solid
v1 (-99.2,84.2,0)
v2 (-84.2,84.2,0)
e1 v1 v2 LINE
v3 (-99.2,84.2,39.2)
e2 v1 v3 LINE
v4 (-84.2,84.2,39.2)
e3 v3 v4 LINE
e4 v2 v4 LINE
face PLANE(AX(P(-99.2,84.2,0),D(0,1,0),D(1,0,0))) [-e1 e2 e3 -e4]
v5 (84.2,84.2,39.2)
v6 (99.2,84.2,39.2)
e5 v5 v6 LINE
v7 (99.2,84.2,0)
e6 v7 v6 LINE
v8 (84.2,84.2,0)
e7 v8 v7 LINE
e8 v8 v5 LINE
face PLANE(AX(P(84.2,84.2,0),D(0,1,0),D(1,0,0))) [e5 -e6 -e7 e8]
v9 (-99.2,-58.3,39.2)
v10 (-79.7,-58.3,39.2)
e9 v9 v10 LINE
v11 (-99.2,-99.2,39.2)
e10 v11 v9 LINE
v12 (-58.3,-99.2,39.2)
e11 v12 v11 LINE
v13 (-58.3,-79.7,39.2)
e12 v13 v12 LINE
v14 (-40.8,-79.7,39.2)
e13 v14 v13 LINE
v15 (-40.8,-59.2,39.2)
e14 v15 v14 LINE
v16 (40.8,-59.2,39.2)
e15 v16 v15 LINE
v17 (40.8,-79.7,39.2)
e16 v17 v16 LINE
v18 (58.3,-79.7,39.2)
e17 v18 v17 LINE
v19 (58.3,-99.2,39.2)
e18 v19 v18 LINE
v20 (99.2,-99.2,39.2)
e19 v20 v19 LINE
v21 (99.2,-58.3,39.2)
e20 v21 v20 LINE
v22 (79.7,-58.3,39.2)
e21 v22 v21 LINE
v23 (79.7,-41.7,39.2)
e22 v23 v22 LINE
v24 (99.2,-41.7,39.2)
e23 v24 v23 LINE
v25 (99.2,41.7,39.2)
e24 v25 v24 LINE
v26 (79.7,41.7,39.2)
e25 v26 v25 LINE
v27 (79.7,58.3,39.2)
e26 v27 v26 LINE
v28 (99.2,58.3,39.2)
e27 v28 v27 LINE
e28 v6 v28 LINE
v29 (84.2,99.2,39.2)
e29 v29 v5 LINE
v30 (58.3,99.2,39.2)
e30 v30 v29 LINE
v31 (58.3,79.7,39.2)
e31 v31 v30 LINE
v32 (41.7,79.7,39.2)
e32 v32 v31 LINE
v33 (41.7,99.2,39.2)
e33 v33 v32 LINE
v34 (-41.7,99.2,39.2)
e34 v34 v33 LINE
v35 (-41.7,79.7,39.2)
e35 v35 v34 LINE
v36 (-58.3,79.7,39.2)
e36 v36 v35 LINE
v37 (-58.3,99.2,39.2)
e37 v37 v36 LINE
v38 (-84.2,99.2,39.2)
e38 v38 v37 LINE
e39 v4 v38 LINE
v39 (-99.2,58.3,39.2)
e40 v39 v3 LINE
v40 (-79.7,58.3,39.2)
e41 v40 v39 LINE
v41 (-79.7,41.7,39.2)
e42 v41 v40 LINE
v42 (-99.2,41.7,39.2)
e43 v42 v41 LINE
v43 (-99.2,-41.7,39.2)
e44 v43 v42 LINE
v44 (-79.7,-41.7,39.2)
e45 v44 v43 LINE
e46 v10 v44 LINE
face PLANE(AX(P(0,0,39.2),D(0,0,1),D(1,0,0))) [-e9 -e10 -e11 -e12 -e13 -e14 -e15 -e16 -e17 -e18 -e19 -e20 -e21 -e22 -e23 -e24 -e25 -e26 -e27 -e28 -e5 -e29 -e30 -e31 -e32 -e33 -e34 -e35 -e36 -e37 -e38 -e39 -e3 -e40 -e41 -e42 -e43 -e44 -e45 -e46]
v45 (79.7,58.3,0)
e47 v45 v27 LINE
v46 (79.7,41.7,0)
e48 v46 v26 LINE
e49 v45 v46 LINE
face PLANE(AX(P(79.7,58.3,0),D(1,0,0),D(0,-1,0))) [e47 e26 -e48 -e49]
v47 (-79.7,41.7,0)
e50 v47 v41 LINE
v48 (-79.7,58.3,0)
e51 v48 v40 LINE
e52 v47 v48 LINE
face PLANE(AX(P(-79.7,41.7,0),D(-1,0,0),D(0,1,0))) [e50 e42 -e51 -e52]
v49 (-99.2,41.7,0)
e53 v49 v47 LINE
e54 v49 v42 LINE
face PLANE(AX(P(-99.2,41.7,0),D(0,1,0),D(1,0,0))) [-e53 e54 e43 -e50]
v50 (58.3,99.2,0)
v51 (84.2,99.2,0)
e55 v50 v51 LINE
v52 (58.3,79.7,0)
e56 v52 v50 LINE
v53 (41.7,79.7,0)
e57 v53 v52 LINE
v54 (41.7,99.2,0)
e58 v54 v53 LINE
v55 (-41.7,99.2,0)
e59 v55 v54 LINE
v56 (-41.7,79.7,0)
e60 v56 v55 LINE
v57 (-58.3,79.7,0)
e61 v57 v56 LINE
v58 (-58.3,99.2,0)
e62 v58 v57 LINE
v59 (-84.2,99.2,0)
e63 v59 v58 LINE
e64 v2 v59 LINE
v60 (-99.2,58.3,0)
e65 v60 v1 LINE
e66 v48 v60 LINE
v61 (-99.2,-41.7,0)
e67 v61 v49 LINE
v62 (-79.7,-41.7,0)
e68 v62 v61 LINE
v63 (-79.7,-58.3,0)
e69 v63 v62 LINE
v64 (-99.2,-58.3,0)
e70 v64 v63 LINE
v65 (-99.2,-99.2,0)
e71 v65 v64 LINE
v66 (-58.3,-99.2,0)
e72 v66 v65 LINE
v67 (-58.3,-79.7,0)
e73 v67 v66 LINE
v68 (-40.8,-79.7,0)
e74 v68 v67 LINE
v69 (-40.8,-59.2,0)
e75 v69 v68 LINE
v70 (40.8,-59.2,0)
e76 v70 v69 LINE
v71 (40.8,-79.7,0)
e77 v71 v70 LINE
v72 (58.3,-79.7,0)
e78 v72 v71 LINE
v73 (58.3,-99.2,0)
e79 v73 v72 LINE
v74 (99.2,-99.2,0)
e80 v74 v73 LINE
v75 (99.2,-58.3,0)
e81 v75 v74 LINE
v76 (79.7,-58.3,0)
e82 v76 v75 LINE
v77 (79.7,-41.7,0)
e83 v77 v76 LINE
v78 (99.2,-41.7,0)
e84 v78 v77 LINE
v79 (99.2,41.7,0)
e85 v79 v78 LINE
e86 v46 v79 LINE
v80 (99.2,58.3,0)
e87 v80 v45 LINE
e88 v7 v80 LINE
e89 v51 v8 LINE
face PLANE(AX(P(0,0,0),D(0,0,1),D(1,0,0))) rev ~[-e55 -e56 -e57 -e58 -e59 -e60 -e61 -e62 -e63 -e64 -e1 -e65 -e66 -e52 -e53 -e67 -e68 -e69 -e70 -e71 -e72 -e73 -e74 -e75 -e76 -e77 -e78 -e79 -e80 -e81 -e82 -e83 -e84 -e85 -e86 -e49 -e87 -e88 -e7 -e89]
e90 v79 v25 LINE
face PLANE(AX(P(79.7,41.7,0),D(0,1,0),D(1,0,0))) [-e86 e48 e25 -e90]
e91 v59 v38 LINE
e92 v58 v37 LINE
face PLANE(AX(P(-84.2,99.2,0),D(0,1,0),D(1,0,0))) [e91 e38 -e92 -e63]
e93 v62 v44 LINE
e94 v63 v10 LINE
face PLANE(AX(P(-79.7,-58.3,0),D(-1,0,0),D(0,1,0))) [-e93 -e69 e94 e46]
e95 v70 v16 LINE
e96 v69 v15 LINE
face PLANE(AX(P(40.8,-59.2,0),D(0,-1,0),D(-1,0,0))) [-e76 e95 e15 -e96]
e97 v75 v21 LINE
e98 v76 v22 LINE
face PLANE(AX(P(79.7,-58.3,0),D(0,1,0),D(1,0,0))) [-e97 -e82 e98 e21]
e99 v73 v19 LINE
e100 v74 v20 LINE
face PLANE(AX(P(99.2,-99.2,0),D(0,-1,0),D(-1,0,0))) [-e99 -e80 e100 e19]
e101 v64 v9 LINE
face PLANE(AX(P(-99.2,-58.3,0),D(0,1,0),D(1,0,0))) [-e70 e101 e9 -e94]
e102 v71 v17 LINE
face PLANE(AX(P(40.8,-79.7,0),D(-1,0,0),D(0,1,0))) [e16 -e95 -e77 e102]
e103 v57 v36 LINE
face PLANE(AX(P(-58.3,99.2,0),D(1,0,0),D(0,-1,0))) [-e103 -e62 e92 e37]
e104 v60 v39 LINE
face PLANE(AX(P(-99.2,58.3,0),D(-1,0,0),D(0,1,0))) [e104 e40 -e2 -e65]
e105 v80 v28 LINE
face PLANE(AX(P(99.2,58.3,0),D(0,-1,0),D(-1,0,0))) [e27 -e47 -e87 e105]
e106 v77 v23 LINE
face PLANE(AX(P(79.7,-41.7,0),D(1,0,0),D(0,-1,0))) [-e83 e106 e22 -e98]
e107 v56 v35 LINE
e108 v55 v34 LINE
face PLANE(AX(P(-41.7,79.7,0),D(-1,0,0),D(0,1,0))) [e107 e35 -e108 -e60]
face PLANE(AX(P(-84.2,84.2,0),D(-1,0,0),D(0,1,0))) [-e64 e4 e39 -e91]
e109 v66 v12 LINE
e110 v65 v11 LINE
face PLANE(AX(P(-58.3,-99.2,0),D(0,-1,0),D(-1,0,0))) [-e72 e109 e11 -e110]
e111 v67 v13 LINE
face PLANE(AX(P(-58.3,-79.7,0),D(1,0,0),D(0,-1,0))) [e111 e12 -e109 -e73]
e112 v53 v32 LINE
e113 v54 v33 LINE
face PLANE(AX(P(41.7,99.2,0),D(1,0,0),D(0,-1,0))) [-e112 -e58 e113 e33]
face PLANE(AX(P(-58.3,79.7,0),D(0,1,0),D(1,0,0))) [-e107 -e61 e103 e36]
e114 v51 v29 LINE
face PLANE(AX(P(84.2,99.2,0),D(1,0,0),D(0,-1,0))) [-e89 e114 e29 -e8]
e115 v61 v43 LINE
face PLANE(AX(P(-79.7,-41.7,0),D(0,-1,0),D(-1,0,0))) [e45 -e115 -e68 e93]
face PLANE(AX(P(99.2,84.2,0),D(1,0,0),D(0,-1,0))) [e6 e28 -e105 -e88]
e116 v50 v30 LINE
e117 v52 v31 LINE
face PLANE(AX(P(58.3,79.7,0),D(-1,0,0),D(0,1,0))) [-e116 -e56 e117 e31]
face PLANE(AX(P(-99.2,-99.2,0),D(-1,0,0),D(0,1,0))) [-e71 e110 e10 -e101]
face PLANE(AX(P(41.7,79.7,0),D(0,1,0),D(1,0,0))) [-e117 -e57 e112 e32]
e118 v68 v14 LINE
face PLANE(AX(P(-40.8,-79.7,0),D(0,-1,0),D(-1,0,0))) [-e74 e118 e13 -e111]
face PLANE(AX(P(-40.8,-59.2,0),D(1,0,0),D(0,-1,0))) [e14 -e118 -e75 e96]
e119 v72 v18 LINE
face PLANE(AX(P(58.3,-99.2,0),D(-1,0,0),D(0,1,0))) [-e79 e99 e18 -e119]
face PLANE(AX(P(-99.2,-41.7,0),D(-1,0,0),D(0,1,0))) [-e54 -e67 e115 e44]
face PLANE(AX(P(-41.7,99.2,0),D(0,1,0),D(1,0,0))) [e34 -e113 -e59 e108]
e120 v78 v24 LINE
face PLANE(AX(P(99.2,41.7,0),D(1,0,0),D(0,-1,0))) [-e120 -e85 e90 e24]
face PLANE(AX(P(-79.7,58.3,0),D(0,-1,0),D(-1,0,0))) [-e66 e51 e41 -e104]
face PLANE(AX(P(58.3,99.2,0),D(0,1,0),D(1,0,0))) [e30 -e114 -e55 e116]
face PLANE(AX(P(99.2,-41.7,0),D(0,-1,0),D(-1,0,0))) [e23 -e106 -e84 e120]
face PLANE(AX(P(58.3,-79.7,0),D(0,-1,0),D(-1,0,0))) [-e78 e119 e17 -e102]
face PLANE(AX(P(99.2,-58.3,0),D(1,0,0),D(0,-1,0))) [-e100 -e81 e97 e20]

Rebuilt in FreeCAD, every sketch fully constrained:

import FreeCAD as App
import Part
import Sketcher
Q = App.Units.Quantity

doc = App.newDocument("Part")
body = doc.addObject("PartDesign::Body", "Body")

sketch1 = body.newObject("Sketcher::SketchObject", "Sketch")
sketch1.AttachmentSupport = (doc.getObject("XY_Plane"), [""])
sketch1.MapMode = "FlatFace"
sketch1.addGeometry(Part.LineSegment(App.Vector(-41, -59, 0), App.Vector(41, -59, 0)), False)
sketch1.addGeometry(Part.LineSegment(App.Vector(41, -59, 0), App.Vector(41, -80, 0)), False)
sketch1.addGeometry(Part.LineSegment(App.Vector(41, -80, 0), App.Vector(58, -80, 0)), False)
sketch1.addGeometry(Part.LineSegment(App.Vector(58, -80, 0), App.Vector(58, -99, 0)), False)
sketch1.addGeometry(Part.LineSegment(App.Vector(58, -99, 0), App.Vector(99, -99, 0)), False)
sketch1.addGeometry(Part.LineSegment(App.Vector(99, -99, 0), App.Vector(99, -58, 0)), False)
sketch1.addGeometry(Part.LineSegment(App.Vector(99, -58, 0), App.Vector(80, -58, 0)), False)
sketch1.addGeometry(Part.LineSegment(App.Vector(80, -58, 0), App.Vector(80, -42, 0)), False)
sketch1.addGeometry(Part.LineSegment(App.Vector(80, -42, 0), App.Vector(99, -42, 0)), False)
sketch1.addGeometry(Part.LineSegment(App.Vector(99, -42, 0), App.Vector(99, 42, 0)), False)
sketch1.addGeometry(Part.LineSegment(App.Vector(99, 42, 0), App.Vector(80, 42, 0)), False)
sketch1.addGeometry(Part.LineSegment(App.Vector(80, 42, 0), App.Vector(80, 58, 0)), False)
sketch1.addGeometry(Part.LineSegment(App.Vector(80, 58, 0), App.Vector(99, 58, 0)), False)
sketch1.addGeometry(Part.LineSegment(App.Vector(99, 58, 0), App.Vector(99, 84, 0)), False)
sketch1.addGeometry(Part.LineSegment(App.Vector(99, 84, 0), App.Vector(84, 84, 0)), False)
sketch1.addGeometry(Part.LineSegment(App.Vector(84, 84, 0), App.Vector(84, 99, 0)), False)
sketch1.addGeometry(Part.LineSegment(App.Vector(84, 99, 0), App.Vector(58, 99, 0)), False)
sketch1.addGeometry(Part.LineSegment(App.Vector(58, 99, 0), App.Vector(58, 80, 0)), False)
sketch1.addGeometry(Part.LineSegment(App.Vector(58, 80, 0), App.Vector(42, 80, 0)), False)
sketch1.addGeometry(Part.LineSegment(App.Vector(42, 80, 0), App.Vector(42, 99, 0)), False)
sketch1.addGeometry(Part.LineSegment(App.Vector(42, 99, 0), App.Vector(-42, 99, 0)), False)
sketch1.addGeometry(Part.LineSegment(App.Vector(-42, 99, 0), App.Vector(-42, 80, 0)), False)
sketch1.addGeometry(Part.LineSegment(App.Vector(-42, 80, 0), App.Vector(-58, 80, 0)), False)
sketch1.addGeometry(Part.LineSegment(App.Vector(-58, 80, 0), App.Vector(-58, 99, 0)), False)
sketch1.addGeometry(Part.LineSegment(App.Vector(-58, 99, 0), App.Vector(-84, 99, 0)), False)
sketch1.addGeometry(Part.LineSegment(App.Vector(-84, 99, 0), App.Vector(-84, 84, 0)), False)
sketch1.addGeometry(Part.LineSegment(App.Vector(-84, 84, 0), App.Vector(-99, 84, 0)), False)
sketch1.addGeometry(Part.LineSegment(App.Vector(-99, 84, 0), App.Vector(-99, 58, 0)), False)
sketch1.addGeometry(Part.LineSegment(App.Vector(-99, 58, 0), App.Vector(-80, 58, 0)), False)
sketch1.addGeometry(Part.LineSegment(App.Vector(-80, 58, 0), App.Vector(-80, 42, 0)), False)
sketch1.addGeometry(Part.LineSegment(App.Vector(-80, 42, 0), App.Vector(-99, 42, 0)), False)
sketch1.addGeometry(Part.LineSegment(App.Vector(-99, 42, 0), App.Vector(-99, -42, 0)), False)
sketch1.addGeometry(Part.LineSegment(App.Vector(-99, -42, 0), App.Vector(-80, -42, 0)), False)
sketch1.addGeometry(Part.LineSegment(App.Vector(-80, -42, 0), App.Vector(-80, -58, 0)), False)
sketch1.addGeometry(Part.LineSegment(App.Vector(-80, -58, 0), App.Vector(-99, -58, 0)), False)
sketch1.addGeometry(Part.LineSegment(App.Vector(-99, -58, 0), App.Vector(-99, -99, 0)), False)
sketch1.addGeometry(Part.LineSegment(App.Vector(-99, -99, 0), App.Vector(-58, -99, 0)), False)
sketch1.addGeometry(Part.LineSegment(App.Vector(-58, -99, 0), App.Vector(-58, -80, 0)), False)
sketch1.addGeometry(Part.LineSegment(App.Vector(-58, -80, 0), App.Vector(-41, -80, 0)), False)
sketch1.addGeometry(Part.LineSegment(App.Vector(-41, -80, 0), App.Vector(-41, -59, 0)), False)
sketch1.addConstraint(Sketcher.Constraint("Coincident", 0, 2, 1, 1))
sketch1.addConstraint(Sketcher.Constraint("Coincident", 1, 2, 2, 1))
sketch1.addConstraint(Sketcher.Constraint("Coincident", 2, 2, 3, 1))
sketch1.addConstraint(Sketcher.Constraint("Coincident", 3, 2, 4, 1))
sketch1.addConstraint(Sketcher.Constraint("Coincident", 4, 2, 5, 1))
sketch1.addConstraint(Sketcher.Constraint("Coincident", 5, 2, 6, 1))
sketch1.addConstraint(Sketcher.Constraint("Coincident", 6, 2, 7, 1))
sketch1.addConstraint(Sketcher.Constraint("Coincident", 7, 2, 8, 1))
sketch1.addConstraint(Sketcher.Constraint("Coincident", 8, 2, 9, 1))
sketch1.addConstraint(Sketcher.Constraint("Coincident", 9, 2, 10, 1))
sketch1.addConstraint(Sketcher.Constraint("Coincident", 10, 2, 11, 1))
sketch1.addConstraint(Sketcher.Constraint("Coincident", 11, 2, 12, 1))
sketch1.addConstraint(Sketcher.Constraint("Coincident", 12, 2, 13, 1))
sketch1.addConstraint(Sketcher.Constraint("Coincident", 13, 2, 14, 1))
sketch1.addConstraint(Sketcher.Constraint("Coincident", 14, 2, 15, 1))
sketch1.addConstraint(Sketcher.Constraint("Coincident", 15, 2, 16, 1))
sketch1.addConstraint(Sketcher.Constraint("Coincident", 16, 2, 17, 1))
sketch1.addConstraint(Sketcher.Constraint("Coincident", 17, 2, 18, 1))
sketch1.addConstraint(Sketcher.Constraint("Coincident", 18, 2, 19, 1))
sketch1.addConstraint(Sketcher.Constraint("Coincident", 19, 2, 20, 1))
sketch1.addConstraint(Sketcher.Constraint("Coincident", 20, 2, 21, 1))
sketch1.addConstraint(Sketcher.Constraint("Coincident", 21, 2, 22, 1))
sketch1.addConstraint(Sketcher.Constraint("Coincident", 22, 2, 23, 1))
sketch1.addConstraint(Sketcher.Constraint("Coincident", 23, 2, 24, 1))
sketch1.addConstraint(Sketcher.Constraint("Coincident", 24, 2, 25, 1))
sketch1.addConstraint(Sketcher.Constraint("Coincident", 25, 2, 26, 1))
sketch1.addConstraint(Sketcher.Constraint("Coincident", 26, 2, 27, 1))
sketch1.addConstraint(Sketcher.Constraint("Coincident", 27, 2, 28, 1))
sketch1.addConstraint(Sketcher.Constraint("Coincident", 28, 2, 29, 1))
sketch1.addConstraint(Sketcher.Constraint("Coincident", 29, 2, 30, 1))
sketch1.addConstraint(Sketcher.Constraint("Coincident", 30, 2, 31, 1))
sketch1.addConstraint(Sketcher.Constraint("Coincident", 31, 2, 32, 1))
sketch1.addConstraint(Sketcher.Constraint("Coincident", 32, 2, 33, 1))
sketch1.addConstraint(Sketcher.Constraint("Coincident", 33, 2, 34, 1))
sketch1.addConstraint(Sketcher.Constraint("Coincident", 34, 2, 35, 1))
sketch1.addConstraint(Sketcher.Constraint("Coincident", 35, 2, 36, 1))
sketch1.addConstraint(Sketcher.Constraint("Coincident", 36, 2, 37, 1))
sketch1.addConstraint(Sketcher.Constraint("Coincident", 37, 2, 38, 1))
sketch1.addConstraint(Sketcher.Constraint("Coincident", 38, 2, 39, 1))
sketch1.addConstraint(Sketcher.Constraint("Coincident", 39, 2, 0, 1))
sketch1.addConstraint(Sketcher.Constraint("Horizontal", 0))
sketch1.addConstraint(Sketcher.Constraint("Vertical", 1))
sketch1.addConstraint(Sketcher.Constraint("Horizontal", 2))
sketch1.addConstraint(Sketcher.Constraint("Vertical", 3))
sketch1.addConstraint(Sketcher.Constraint("Horizontal", 4))
sketch1.addConstraint(Sketcher.Constraint("Vertical", 5))
sketch1.addConstraint(Sketcher.Constraint("Horizontal", 6))
sketch1.addConstraint(Sketcher.Constraint("Vertical", 7))
sketch1.addConstraint(Sketcher.Constraint("Horizontal", 8))
sketch1.addConstraint(Sketcher.Constraint("Vertical", 9))
sketch1.addConstraint(Sketcher.Constraint("Horizontal", 10))
sketch1.addConstraint(Sketcher.Constraint("Vertical", 11))
sketch1.addConstraint(Sketcher.Constraint("Horizontal", 12))
sketch1.addConstraint(Sketcher.Constraint("Vertical", 13))
sketch1.addConstraint(Sketcher.Constraint("Horizontal", 14))
sketch1.addConstraint(Sketcher.Constraint("Vertical", 15))
sketch1.addConstraint(Sketcher.Constraint("Horizontal", 16))
sketch1.addConstraint(Sketcher.Constraint("Vertical", 17))
sketch1.addConstraint(Sketcher.Constraint("Horizontal", 18))
sketch1.addConstraint(Sketcher.Constraint("Vertical", 19))
sketch1.addConstraint(Sketcher.Constraint("Horizontal", 20))
sketch1.addConstraint(Sketcher.Constraint("Vertical", 21))
sketch1.addConstraint(Sketcher.Constraint("Horizontal", 22))
sketch1.addConstraint(Sketcher.Constraint("Vertical", 23))
sketch1.addConstraint(Sketcher.Constraint("Horizontal", 24))
sketch1.addConstraint(Sketcher.Constraint("Vertical", 25))
sketch1.addConstraint(Sketcher.Constraint("Horizontal", 26))
sketch1.addConstraint(Sketcher.Constraint("Vertical", 27))
sketch1.addConstraint(Sketcher.Constraint("Horizontal", 28))
sketch1.addConstraint(Sketcher.Constraint("Vertical", 29))
sketch1.addConstraint(Sketcher.Constraint("Horizontal", 30))
sketch1.addConstraint(Sketcher.Constraint("Vertical", 31))
sketch1.addConstraint(Sketcher.Constraint("Horizontal", 32))
sketch1.addConstraint(Sketcher.Constraint("Vertical", 33))
sketch1.addConstraint(Sketcher.Constraint("Horizontal", 34))
sketch1.addConstraint(Sketcher.Constraint("Vertical", 35))
sketch1.addConstraint(Sketcher.Constraint("Horizontal", 36))
sketch1.addConstraint(Sketcher.Constraint("Vertical", 37))
sketch1.addConstraint(Sketcher.Constraint("Horizontal", 38))
sketch1.addConstraint(Sketcher.Constraint("Vertical", 39))
sketch1.addConstraint(Sketcher.Constraint("Symmetric", 2, 2, 22, 2, -1, 1))
sketch1.addConstraint(Sketcher.Constraint("Symmetric", 5, 2, 27, 2, -1, 1))
sketch1.addConstraint(Sketcher.Constraint("Symmetric", 7, 2, 29, 2, -1, 1))
sketch1.addConstraint(Sketcher.Constraint("Symmetric", 9, 2, 31, 2, -1, 1))
sketch1.addConstraint(Sketcher.Constraint("Symmetric", 11, 2, 33, 2, -1, 1))
sketch1.addConstraint(Sketcher.Constraint("Symmetric", 16, 2, 36, 2, -1, 1))
sketch1.addConstraint(Sketcher.Constraint("Symmetric", 18, 2, 21, 2, -2))
sketch1.addConstraint(Sketcher.Constraint("Symmetric", 16, 2, 23, 2, -2))
sketch1.addConstraint(Sketcher.Constraint("Symmetric", 14, 2, 25, 2, -2))
sketch1.addConstraint(Sketcher.Constraint("Symmetric", 12, 2, 27, 2, -2))
sketch1.addConstraint(Sketcher.Constraint("Symmetric", 10, 2, 29, 2, -2))
sketch1.addConstraint(Sketcher.Constraint("Symmetric", 4, 2, 35, 2, -2))
sketch1.addConstraint(Sketcher.Constraint("Symmetric", 1, 2, 38, 2, -2))
sketch1.addConstraint(Sketcher.Constraint("Horizontal", 16, 2, 19, 2))
sketch1.addConstraint(Sketcher.Constraint("Vertical", 5, 2, 8, 2))
sketch1.addConstraint(Sketcher.Constraint("Equal", 34, 3))
sketch1.addConstraint(Sketcher.Constraint("Equal", 36, 5))
sketch1.addConstraint(Sketcher.Constraint("Equal", 22, 7))
sketch1.addConstraint(Sketcher.Constraint("Equal", 20, 9))
sketch1.addConstraint(Sketcher.Constraint("Equal", 24, 13))
sketch1.addConstraint(Sketcher.Constraint("DistanceX", 14, 2, 14, 1, Q("15 mm")))
sketch1.addConstraint(Sketcher.Constraint("DistanceX", 0, 1, 0, 2, Q("81.6 mm")))
sketch1.addConstraint(Sketcher.Constraint("DistanceX", 2, 1, 2, 2, Q("17.5 mm")))
sketch1.addConstraint(Sketcher.Constraint("DistanceX", 4, 1, 4, 2, Q("40.9 mm")))
sketch1.addConstraint(Sketcher.Constraint("DistanceX", 6, 2, 6, 1, Q("19.5 mm")))
sketch1.addConstraint(Sketcher.Constraint("DistanceX", 18, 2, 18, 1, Q("16.6 mm")))
sketch1.addConstraint(Sketcher.Constraint("DistanceY", 1, 2, 1, 1, Q("20.5 mm")))
pad1 = body.newObject("PartDesign::Pad", "Pad")
pad1.Profile = sketch1
pad1.Length = 39.2

doc.recompute()
